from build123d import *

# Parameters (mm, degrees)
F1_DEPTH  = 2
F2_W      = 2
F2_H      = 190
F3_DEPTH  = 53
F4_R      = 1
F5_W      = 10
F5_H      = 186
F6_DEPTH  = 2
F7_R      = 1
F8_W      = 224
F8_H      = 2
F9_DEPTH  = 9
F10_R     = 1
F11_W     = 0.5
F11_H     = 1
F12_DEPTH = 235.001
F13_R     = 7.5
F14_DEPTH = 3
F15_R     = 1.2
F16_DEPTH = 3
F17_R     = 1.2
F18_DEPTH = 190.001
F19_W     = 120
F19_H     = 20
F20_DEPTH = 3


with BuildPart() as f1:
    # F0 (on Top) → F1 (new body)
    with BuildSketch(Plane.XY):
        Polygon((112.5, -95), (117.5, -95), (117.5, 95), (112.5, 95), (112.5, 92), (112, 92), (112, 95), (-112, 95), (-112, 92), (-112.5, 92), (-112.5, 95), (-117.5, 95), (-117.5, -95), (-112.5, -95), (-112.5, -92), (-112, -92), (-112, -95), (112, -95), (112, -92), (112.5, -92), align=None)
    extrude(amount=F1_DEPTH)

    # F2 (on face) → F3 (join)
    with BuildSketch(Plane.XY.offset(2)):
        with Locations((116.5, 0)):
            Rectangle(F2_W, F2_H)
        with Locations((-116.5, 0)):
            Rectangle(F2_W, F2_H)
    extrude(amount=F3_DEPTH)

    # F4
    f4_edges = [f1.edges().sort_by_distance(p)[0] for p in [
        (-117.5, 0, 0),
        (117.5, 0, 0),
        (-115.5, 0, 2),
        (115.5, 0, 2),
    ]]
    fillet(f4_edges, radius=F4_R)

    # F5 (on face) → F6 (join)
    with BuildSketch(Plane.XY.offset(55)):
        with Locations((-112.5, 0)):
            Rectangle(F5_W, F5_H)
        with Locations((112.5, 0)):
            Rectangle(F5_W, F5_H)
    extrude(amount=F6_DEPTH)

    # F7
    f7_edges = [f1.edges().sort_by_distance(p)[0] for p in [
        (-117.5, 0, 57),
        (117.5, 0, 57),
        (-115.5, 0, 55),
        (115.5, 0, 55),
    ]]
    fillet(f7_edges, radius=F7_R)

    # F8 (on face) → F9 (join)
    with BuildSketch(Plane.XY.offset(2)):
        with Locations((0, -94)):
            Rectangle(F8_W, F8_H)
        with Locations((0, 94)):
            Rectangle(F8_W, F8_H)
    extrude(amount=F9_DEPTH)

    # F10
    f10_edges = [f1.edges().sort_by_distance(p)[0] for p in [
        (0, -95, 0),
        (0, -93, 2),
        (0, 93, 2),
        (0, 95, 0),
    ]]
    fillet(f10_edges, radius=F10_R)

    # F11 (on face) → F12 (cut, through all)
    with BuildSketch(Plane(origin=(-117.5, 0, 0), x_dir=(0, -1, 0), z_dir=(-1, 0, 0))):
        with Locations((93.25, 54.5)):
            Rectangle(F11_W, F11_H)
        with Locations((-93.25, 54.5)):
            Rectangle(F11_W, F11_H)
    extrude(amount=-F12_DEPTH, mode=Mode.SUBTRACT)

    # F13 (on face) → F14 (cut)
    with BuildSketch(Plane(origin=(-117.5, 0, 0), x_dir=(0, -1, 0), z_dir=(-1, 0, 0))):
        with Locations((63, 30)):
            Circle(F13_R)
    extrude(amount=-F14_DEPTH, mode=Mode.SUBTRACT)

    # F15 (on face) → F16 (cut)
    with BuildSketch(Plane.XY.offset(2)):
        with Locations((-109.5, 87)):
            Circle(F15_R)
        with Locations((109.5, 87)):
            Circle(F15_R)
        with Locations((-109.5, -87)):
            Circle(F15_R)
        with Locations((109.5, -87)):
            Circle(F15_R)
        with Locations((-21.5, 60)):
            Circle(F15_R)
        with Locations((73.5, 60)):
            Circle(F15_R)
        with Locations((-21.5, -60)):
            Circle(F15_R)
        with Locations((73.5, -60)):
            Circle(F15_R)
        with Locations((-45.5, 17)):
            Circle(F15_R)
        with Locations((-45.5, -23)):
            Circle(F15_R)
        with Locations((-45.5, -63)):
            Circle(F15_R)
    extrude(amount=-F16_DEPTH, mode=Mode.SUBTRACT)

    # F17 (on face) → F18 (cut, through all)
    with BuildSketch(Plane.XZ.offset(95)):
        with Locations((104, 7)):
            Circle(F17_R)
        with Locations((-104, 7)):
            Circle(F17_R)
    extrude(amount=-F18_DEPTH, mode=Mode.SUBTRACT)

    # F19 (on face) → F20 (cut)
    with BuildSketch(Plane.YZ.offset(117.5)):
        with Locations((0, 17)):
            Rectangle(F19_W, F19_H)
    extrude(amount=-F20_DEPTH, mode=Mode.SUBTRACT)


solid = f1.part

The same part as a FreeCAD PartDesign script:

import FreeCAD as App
import Part
import Sketcher

V = App.Vector
Q = App.Units.Quantity


def edges_at(feature, points):
    """Names of the edges that pass closest to the given points."""
    edges = feature.Shape.Edges
    near = lambda p: min(range(len(edges)), key=lambda i: edges[i].distToShape(Part.Vertex(*p))[0])
    return sorted({f"Edge{near(p) + 1}" for p in points})

doc = App.newDocument("Part")
body = doc.addObject("PartDesign::Body", "Body")

# Sketch on XY plane
sketch1 = body.newObject("Sketcher::SketchObject", "Sketch")
sketch1.AttachmentSupport = (doc.getObject("XY_Plane"), [""])
sketch1.MapMode = "FlatFace"
sketch1.addGeometry([
    Part.LineSegment(V(112.5, -95, 0), V(117.5, -95, 0)),  # 0
    Part.LineSegment(V(117.5, -95, 0), V(117.5, 95, 0)),  # 1
    Part.LineSegment(V(117.5, 95, 0), V(112.5, 95, 0)),  # 2
    Part.LineSegment(V(112.5, 95, 0), V(112.5, 92, 0)),  # 3
    Part.LineSegment(V(112.5, 92, 0), V(112, 92, 0)),  # 4
    Part.LineSegment(V(112, 92, 0), V(112, 95, 0)),  # 5
    Part.LineSegment(V(112, 95, 0), V(-112, 95, 0)),  # 6
    Part.LineSegment(V(-112, 95, 0), V(-112, 92, 0)),  # 7
    Part.LineSegment(V(-112, 92, 0), V(-112.5, 92, 0)),  # 8
    Part.LineSegment(V(-112.5, 92, 0), V(-112.5, 95, 0)),  # 9
    Part.LineSegment(V(-112.5, 95, 0), V(-117.5, 95, 0)),  # 10
    Part.LineSegment(V(-117.5, 95, 0), V(-117.5, -95, 0)),  # 11
    Part.LineSegment(V(-117.5, -95, 0), V(-112.5, -95, 0)),  # 12
    Part.LineSegment(V(-112.5, -95, 0), V(-112.5, -92, 0)),  # 13
    Part.LineSegment(V(-112.5, -92, 0), V(-112, -92, 0)),  # 14
    Part.LineSegment(V(-112, -92, 0), V(-112, -95, 0)),  # 15
    Part.LineSegment(V(-112, -95, 0), V(112, -95, 0)),  # 16
    Part.LineSegment(V(112, -95, 0), V(112, -92, 0)),  # 17
    Part.LineSegment(V(112, -92, 0), V(112.5, -92, 0)),  # 18
    Part.LineSegment(V(112.5, -92, 0), V(112.5, -95, 0)),  # 19
], False)
sketch1.addConstraint([
    Sketcher.Constraint("Coincident", 0, 2, 1, 1),
    Sketcher.Constraint("Coincident", 1, 2, 2, 1),
    Sketcher.Constraint("Coincident", 2, 2, 3, 1),
    Sketcher.Constraint("Coincident", 3, 2, 4, 1),
    Sketcher.Constraint("Coincident", 4, 2, 5, 1),
    Sketcher.Constraint("Coincident", 5, 2, 6, 1),
    Sketcher.Constraint("Coincident", 6, 2, 7, 1),
    Sketcher.Constraint("Coincident", 7, 2, 8, 1),
    Sketcher.Constraint("Coincident", 8, 2, 9, 1),
    Sketcher.Constraint("Coincident", 9, 2, 10, 1),
    Sketcher.Constraint("Coincident", 10, 2, 11, 1),
    Sketcher.Constraint("Coincident", 11, 2, 12, 1),
    Sketcher.Constraint("Coincident", 12, 2, 13, 1),
    Sketcher.Constraint("Coincident", 13, 2, 14, 1),
    Sketcher.Constraint("Coincident", 14, 2, 15, 1),
    Sketcher.Constraint("Coincident", 15, 2, 16, 1),
    Sketcher.Constraint("Coincident", 16, 2, 17, 1),
    Sketcher.Constraint("Coincident", 17, 2, 18, 1),
    Sketcher.Constraint("Coincident", 18, 2, 19, 1),
    Sketcher.Constraint("Coincident", 19, 2, 0, 1),
    Sketcher.Constraint("Horizontal", 0),
    Sketcher.Constraint("Vertical", 1),
    Sketcher.Constraint("Horizontal", 2),
    Sketcher.Constraint("Vertical", 3),
    Sketcher.Constraint("Horizontal", 4),
    Sketcher.Constraint("Vertical", 5),
    Sketcher.Constraint("Horizontal", 6),
    Sketcher.Constraint("Vertical", 7),
    Sketcher.Constraint("Horizontal", 8),
    Sketcher.Constraint("Vertical", 9),
    Sketcher.Constraint("Horizontal", 10),
    Sketcher.Constraint("Vertical", 11),
    Sketcher.Constraint("Horizontal", 12),
    Sketcher.Constraint("Vertical", 13),
    Sketcher.Constraint("Horizontal", 14),
    Sketcher.Constraint("Vertical", 15),
    Sketcher.Constraint("Horizontal", 16),
    Sketcher.Constraint("Vertical", 17),
    Sketcher.Constraint("Horizontal", 18),
    Sketcher.Constraint("Vertical", 19),
    Sketcher.Constraint("Symmetric", 0, 2, 10, 2, -1, 1),
    Sketcher.Constraint("Symmetric", 2, 2, 12, 2, -1, 1),
    Sketcher.Constraint("Symmetric", 4, 2, 14, 2, -1, 1),
    Sketcher.Constraint("Symmetric", 6, 2, 16, 2, -1, 1),
    Sketcher.Constraint("Symmetric", 8, 2, 18, 2, -1, 1),
    Sketcher.Constraint("Symmetric", 4, 2, 7, 2, -2),
    Sketcher.Constraint("Symmetric", 2, 2, 9, 2, -2),
    Sketcher.Constraint("Horizontal", 2, 2, 5, 2),
    Sketcher.Constraint("DistanceX", 0, 1, 0, 2, Q("5 mm")),
    Sketcher.Constraint("DistanceX", 6, 2, 6, 1, Q("224 mm")),
    Sketcher.Constraint("DistanceY", 1, 1, 1, 2, Q("190 mm")),
    Sketcher.Constraint("DistanceY", 3, 2, 3, 1, Q("3 mm")),
    Sketcher.Constraint("DistanceX", 4, 2, 4, 1, Q("0.5 mm")),
])
pad1 = body.newObject("PartDesign::Pad", "Pad")
pad1.Profile = sketch1
pad1.Length = 2

# Sketch on XY plane
sketch2 = body.newObject("Sketcher::SketchObject", "Sketch001")
sketch2.AttachmentSupport = (doc.getObject("XY_Plane"), [""])
sketch2.MapMode = "FlatFace"
sketch2.AttachmentOffset = App.Placement(V(0, 0, 2), App.Rotation())
sketch2.addGeometry([
    Part.LineSegment(V(115.5, 95, 0), V(115.5, -95, 0)),  # 0
    Part.LineSegment(V(115.5, -95, 0), V(117.5, -95, 0)),  # 1
    Part.LineSegment(V(117.5, -95, 0), V(117.5, 95, 0)),  # 2
    Part.LineSegment(V(117.5, 95, 0), V(115.5, 95, 0)),  # 3
    Part.LineSegment(V(-117.5, 95, 0), V(-117.5, -95, 0)),  # 4
    Part.LineSegment(V(-117.5, -95, 0), V(-115.5, -95, 0)),  # 5
    Part.LineSegment(V(-115.5, -95, 0), V(-115.5, 95, 0)),  # 6
    Part.LineSegment(V(-115.5, 95, 0), V(-117.5, 95, 0)),  # 7
], False)
sketch2.addConstraint([
    Sketcher.Constraint("Coincident", 0, 2, 1, 1),
    Sketcher.Constraint("Coincident", 1, 2, 2, 1),
    Sketcher.Constraint("Coincident", 2, 2, 3, 1),
    Sketcher.Constraint("Coincident", 3, 2, 0, 1),
    Sketcher.Constraint("Coincident", 4, 2, 5, 1),
    Sketcher.Constraint("Coincident", 5, 2, 6, 1),
    Sketcher.Constraint("Coincident", 6, 2, 7, 1),
    Sketcher.Constraint("Coincident", 7, 2, 4, 1),
    Sketcher.Constraint("Vertical", 0),
    Sketcher.Constraint("Horizontal", 1),
    Sketcher.Constraint("Vertical", 2),
    Sketcher.Constraint("Horizontal", 3),
    Sketcher.Constraint("Vertical", 4),
    Sketcher.Constraint("Horizontal", 5),
    Sketcher.Constraint("Vertical", 6),
    Sketcher.Constraint("Horizontal", 7),
    Sketcher.Constraint("Symmetric", 2, 2, 4, 2, -1, 1),
    Sketcher.Constraint("Symmetric", 0, 2, 6, 2, -1, 1),
    Sketcher.Constraint("Horizontal", 1, 2, 4, 2),
    Sketcher.Constraint("DistanceX", 1, 1, 1, 2, Q("2 mm")),
    Sketcher.Constraint("DistanceY", 0, 2, 0, 1, Q("190 mm")),
    Sketcher.Constraint("DistanceX", 4, 2, 0, 2, Q("233 mm")),
])
pad2 = body.newObject("PartDesign::Pad", "Pad001")
pad2.Profile = sketch2
pad2.Length = 53
doc.recompute()

fillet = body.newObject("PartDesign::Fillet", "Fillet")
fillet.Base = (pad2, edges_at(pad2, [
    (-117.5, 0, 0),
    (117.5, 0, 0),
    (-115.5, 0, 2),
    (115.5, 0, 2),
]))
fillet.Radius = 1

# Sketch on XY plane
sketch3 = body.newObject("Sketcher::SketchObject", "Sketch002")
sketch3.AttachmentSupport = (doc.getObject("XY_Plane"), [""])
sketch3.MapMode = "FlatFace"
sketch3.AttachmentOffset = App.Placement(V(0, 0, 55), App.Rotation())
sketch3.addGeometry([
    Part.LineSegment(V(-118, 93, 0), V(-118, -93, 0)),  # 0
    Part.LineSegment(V(-118, -93, 0), V(-108, -93, 0)),  # 1
    Part.LineSegment(V(-108, -93, 0), V(-108, 93, 0)),  # 2
    Part.LineSegment(V(-108, 93, 0), V(-118, 93, 0)),  # 3
    Part.LineSegment(V(108, 93, 0), V(108, -93, 0)),  # 4
    Part.LineSegment(V(108, -93, 0), V(118, -93, 0)),  # 5
    Part.LineSegment(V(118, -93, 0), V(118, 93, 0)),  # 6
    Part.LineSegment(V(118, 93, 0), V(108, 93, 0)),  # 7
], False)
sketch3.addConstraint([
    Sketcher.Constraint("Coincident", 0, 2, 1, 1),
    Sketcher.Constraint("Coincident", 1, 2, 2, 1),
    Sketcher.Constraint("Coincident", 2, 2, 3, 1),
    Sketcher.Constraint("Coincident", 3, 2, 0, 1),
    Sketcher.Constraint("Coincident", 4, 2, 5, 1),
    Sketcher.Constraint("Coincident", 5, 2, 6, 1),
    Sketcher.Constraint("Coincident", 6, 2, 7, 1),
    Sketcher.Constraint("Coincident", 7, 2, 4, 1),
    Sketcher.Constraint("Vertical", 0),
    Sketcher.Constraint("Horizontal", 1),
    Sketcher.Constraint("Vertical", 2),
    Sketcher.Constraint("Horizontal", 3),
    Sketcher.Constraint("Vertical", 4),
    Sketcher.Constraint("Horizontal", 5),
    Sketcher.Constraint("Vertical", 6),
    Sketcher.Constraint("Horizontal", 7),
    Sketcher.Constraint("Symmetric", 2, 2, 4, 2, -1, 1),
    Sketcher.Constraint("Symmetric", 0, 2, 6, 2, -1, 1),
    Sketcher.Constraint("Horizontal", 1, 2, 4, 2),
    Sketcher.Constraint("DistanceX", 1, 1, 1, 2, Q("10 mm")),
    Sketcher.Constraint("DistanceY", 0, 2, 0, 1, Q("186 mm")),
    Sketcher.Constraint("DistanceX", 1, 2, 4, 2, Q("215 mm")),
])
pad3 = body.newObject("PartDesign::Pad", "Pad002")
pad3.Profile = sketch3
pad3.Length = 2
doc.recompute()

fillet2 = body.newObject("PartDesign::Fillet", "Fillet001")
fillet2.Base = (pad3, edges_at(pad3, [
    (-117.5, 0, 57),
    (117.5, 0, 57),
    (-115.5, 0, 55),
    (115.5, 0, 55),
]))
fillet2.Radius = 1

# Sketch on XY plane
sketch4 = body.newObject("Sketcher::SketchObject", "Sketch003")
sketch4.AttachmentSupport = (doc.getObject("XY_Plane"), [""])
sketch4.MapMode = "FlatFace"
sketch4.AttachmentOffset = App.Placement(V(0, 0, 2), App.Rotation())
sketch4.addGeometry([
    Part.LineSegment(V(-112, -93, 0), V(-112, -95, 0)),  # 0
    Part.LineSegment(V(-112, -95, 0), V(112, -95, 0)),  # 1
    Part.LineSegment(V(112, -95, 0), V(112, -93, 0)),  # 2
    Part.LineSegment(V(112, -93, 0), V(-112, -93, 0)),  # 3
    Part.LineSegment(V(-112, 95, 0), V(-112, 93, 0)),  # 4
    Part.LineSegment(V(-112, 93, 0), V(112, 93, 0)),  # 5
    Part.LineSegment(V(112, 93, 0), V(112, 95, 0)),  # 6
    Part.LineSegment(V(112, 95, 0), V(-112, 95, 0)),  # 7
], False)
sketch4.addConstraint([
    Sketcher.Constraint("Coincident", 0, 2, 1, 1),
    Sketcher.Constraint("Coincident", 1, 2, 2, 1),
    Sketcher.Constraint("Coincident", 2, 2, 3, 1),
    Sketcher.Constraint("Coincident", 3, 2, 0, 1),
    Sketcher.Constraint("Coincident", 4, 2, 5, 1),
    Sketcher.Constraint("Coincident", 5, 2, 6, 1),
    Sketcher.Constraint("Coincident", 6, 2, 7, 1),
    Sketcher.Constraint("Coincident", 7, 2, 4, 1),
    Sketcher.Constraint("Vertical", 0),
    Sketcher.Constraint("Horizontal", 1),
    Sketcher.Constraint("Vertical", 2),
    Sketcher.Constraint("Horizontal", 3),
    Sketcher.Constraint("Vertical", 4),
    Sketcher.Constraint("Horizontal", 5),
    Sketcher.Constraint("Vertical", 6),
    Sketcher.Constraint("Horizontal", 7),
    Sketcher.Constraint("Symmetric", 2, 2, 4, 2, -1, 1),
    Sketcher.Constraint("Symmetric", 0, 2, 6, 2, -1, 1),
    Sketcher.Constraint("Vertical", 3, 2, 4, 2),
    Sketcher.Constraint("DistanceX", 1, 1, 1, 2, Q("224 mm")),
    Sketcher.Constraint("DistanceY", 0, 2, 0, 1, Q("2 mm")),
    Sketcher.Constraint("DistanceY", 0, 2, -1, 1, Q("95 mm")),
])
pad4 = body.newObject("PartDesign::Pad", "Pad003")
pad4.Profile = sketch4
pad4.Length = 9
doc.recompute()

fillet3 = body.newObject("PartDesign::Fillet", "Fillet002")
fillet3.Base = (pad4, edges_at(pad4, [
    (0, -95, 0),
    (0, -93, 2),
    (0, 93, 2),
    (0, 95, 0),
]))
fillet3.Radius = 1

# Sketch on YZ plane
sketch5 = body.newObject("Sketcher::SketchObject", "Sketch004")
sketch5.AttachmentSupport = (doc.getObject("YZ_Plane"), [""])
sketch5.MapMode = "FlatFace"
sketch5.AttachmentOffset = App.Placement(V(0, 0, -117.5), App.Rotation())
sketch5.addGeometry([
    Part.LineSegment(V(-93, 55, 0), V(-93, 54, 0)),  # 0
    Part.LineSegment(V(-93, 54, 0), V(-93.5, 54, 0)),  # 1
    Part.LineSegment(V(-93.5, 54, 0), V(-93.5, 55, 0)),  # 2
    Part.LineSegment(V(-93.5, 55, 0), V(-93, 55, 0)),  # 3
    Part.LineSegment(V(93.5, 55, 0), V(93.5, 54, 0)),  # 4
    Part.LineSegment(V(93.5, 54, 0), V(93, 54, 0)),  # 5
    Part.LineSegment(V(93, 54, 0), V(93, 55, 0)),  # 6
    Part.LineSegment(V(93, 55, 0), V(93.5, 55, 0)),  # 7
], False)
sketch5.addConstraint([
    Sketcher.Constraint("Coincident", 0, 2, 1, 1),
    Sketcher.Constraint("Coincident", 1, 2, 2, 1),
    Sketcher.Constraint("Coincident", 2, 2, 3, 1),
    Sketcher.Constraint("Coincident", 3, 2, 0, 1),
    Sketcher.Constraint("Coincident", 4, 2, 5, 1),
    Sketcher.Constraint("Coincident", 5, 2, 6, 1),
    Sketcher.Constraint("Coincident", 6, 2, 7, 1),
    Sketcher.Constraint("Coincident", 7, 2, 4, 1),
    Sketcher.Constraint("Vertical", 0),
    Sketcher.Constraint("Horizontal", 1),
    Sketcher.Constraint("Vertical", 2),
    Sketcher.Constraint("Horizontal", 3),
    Sketcher.Constraint("Vertical", 4),
    Sketcher.Constraint("Horizontal", 5),
    Sketcher.Constraint("Vertical", 6),
    Sketcher.Constraint("Horizontal", 7),
    Sketcher.Constraint("Symmetric", 1, 2, 4, 2, -2),
    Sketcher.Constraint("Symmetric", 3, 2, 6, 2, -2),
    Sketcher.Constraint("DistanceY", 0, 2, 0, 1, Q("1 mm")),
    Sketcher.Constraint("DistanceX", 1, 2, 1, 1, Q("0.5 mm")),
    Sketcher.Constraint("DistanceX", 0, 2, -1, 1, Q("93 mm")),
    Sketcher.Constraint("DistanceY", -1, 1, 0, 2, Q("54 mm")),
])
pocket1 = body.newObject("PartDesign::Pocket", "Pocket")
pocket1.Profile = sketch5
pocket1.Type = "ThroughAll"
pocket1.Reversed = True

# Sketch on YZ plane
sketch6 = body.newObject("Sketcher::SketchObject", "Sketch005")
sketch6.AttachmentSupport = (doc.getObject("YZ_Plane"), [""])
sketch6.MapMode = "FlatFace"
sketch6.AttachmentOffset = App.Placement(V(0, 0, -117.5), App.Rotation())
sketch6.addGeometry(Part.Circle(V(-63, 30, 0), V(0, 0, 1), 8), False)
sketch6.addConstraint([
    Sketcher.Constraint("Diameter", 0, Q("15 mm")),
    Sketcher.Constraint("DistanceX", 0, 3, -1, 1, Q("63 mm")),
    Sketcher.Constraint("DistanceY", -1, 1, 0, 3, Q("30 mm")),
])
pocket2 = body.newObject("PartDesign::Pocket", "Pocket001")
pocket2.Profile = sketch6
pocket2.Length = 3
pocket2.Reversed = True

# Sketch on XY plane
sketch7 = body.newObject("Sketcher::SketchObject", "Sketch006")
sketch7.AttachmentSupport = (doc.getObject("XY_Plane"), [""])
sketch7.MapMode = "FlatFace"
sketch7.AttachmentOffset = App.Placement(V(0, 0, 2), App.Rotation())
sketch7.addGeometry([
    Part.Circle(V(-109.5, 87, 0), V(0, 0, 1), 1.2),  # 0
    Part.Circle(V(109.5, 87, 0), V(0, 0, 1), 1.2),  # 1
    Part.Circle(V(-109.5, -87, 0), V(0, 0, 1), 1.2),  # 2
    Part.Circle(V(109.5, -87, 0), V(0, 0, 1), 1.2),  # 3
    Part.Circle(V(-21.5, 60, 0), V(0, 0, 1), 1.2),  # 4
    Part.Circle(V(73.5, 60, 0), V(0, 0, 1), 1.2),  # 5
    Part.Circle(V(-21.5, -60, 0), V(0, 0, 1), 1.2),  # 6
    Part.Circle(V(73.5, -60, 0), V(0, 0, 1), 1.2),  # 7
    Part.Circle(V(-45.5, 17, 0), V(0, 0, 1), 1.2),  # 8
    Part.Circle(V(-45.5, -23, 0), V(0, 0, 1), 1.2),  # 9
    Part.Circle(V(-45.5, -63, 0), V(0, 0, 1), 1.2),  # 10
], False)
sketch7.addConstraint([
    Sketcher.Constraint("Equal", 0, 1),
    Sketcher.Constraint("Equal", 1, 2),
    Sketcher.Constraint("Equal", 2, 3),
    Sketcher.Constraint("Equal", 3, 4),
    Sketcher.Constraint("Equal", 4, 5),
    Sketcher.Constraint("Equal", 5, 6),
    Sketcher.Constraint("Equal", 6, 7),
    Sketcher.Constraint("Equal", 7, 8),
    Sketcher.Constraint("Equal", 8, 9),
    Sketcher.Constraint("Equal", 9, 10),
    Sketcher.Constraint("Symmetric", 1, 3, 2, 3, -1, 1),
    Sketcher.Constraint("Symmetric", 0, 3, 3, 3, -1, 1),
    Sketcher.Constraint("Symmetric", 0, 3, 1, 3, -2),
    Sketcher.Constraint("Symmetric", 4, 3, 6, 3, -1),
    Sketcher.Constraint("Symmetric", 5, 3, 7, 3, -1),
    Sketcher.Constraint("Horizontal", 4, 3, 5, 3),
    Sketcher.Constraint("Vertical", 8, 3, 9, 3),
    Sketcher.Constraint("Vertical", 9, 3, 10, 3),
    Sketcher.Constraint("Diameter", 0, Q("2.4 mm")),
    Sketcher.Constraint("DistanceY", -1, 1, 0, 3, Q("87 mm")),
    Sketcher.Constraint("DistanceY", -1, 1, 4, 3, Q("60 mm")),
    Sketcher.Constraint("DistanceY", -1, 1, 8, 3, Q("17 mm")),
    Sketcher.Constraint("DistanceY", 9, 3, -1, 1, Q("23 mm")),
    Sketcher.Constraint("DistanceY", 10, 3, -1, 1, Q("63 mm")),
    Sketcher.Constraint("DistanceX", 0, 3, 1, 3, Q("219 mm")),
    Sketcher.Constraint("DistanceX", 0, 3, 4, 3, Q("88 mm")),
    Sketcher.Constraint("DistanceX", 5, 3, 1, 3, Q("36 mm")),
    Sketcher.Constraint("DistanceX", 8, 3, 4, 3, Q("24 mm")),
])
pocket3 = body.newObject("PartDesign::Pocket", "Pocket002")
pocket3.Profile = sketch7
pocket3.Length = 3

# Sketch on XZ plane
sketch8 = body.newObject("Sketcher::SketchObject", "Sketch007")
sketch8.AttachmentSupport = (doc.getObject("XZ_Plane"), [""])
sketch8.MapMode = "FlatFace"
sketch8.AttachmentOffset = App.Placement(V(0, 0, 95), App.Rotation())
sketch8.addGeometry([
    Part.Circle(V(104, 7, 0), V(0, 0, 1), 1.2),
    Part.Circle(V(-104, 7, 0), V(0, 0, 1), 1.2),
], False)
sketch8.addConstraint([
    Sketcher.Constraint("Equal", 0, 1),
    Sketcher.Constraint("Symmetric", 0, 3, 1, 3, -2),
    Sketcher.Constraint("Diameter", 0, Q("2.4 mm")),
    Sketcher.Constraint("DistanceX", -1, 1, 0, 3, Q("104 mm")),
    Sketcher.Constraint("DistanceY", -1, 1, 0, 3, Q("7 mm")),
])
pocket4 = body.newObject("PartDesign::Pocket", "Pocket003")
pocket4.Profile = sketch8
pocket4.Type = "ThroughAll"

# Sketch on YZ plane
sketch9 = body.newObject("Sketcher::SketchObject", "Sketch008")
sketch9.AttachmentSupport = (doc.getObject("YZ_Plane"), [""])
sketch9.MapMode = "FlatFace"
sketch9.AttachmentOffset = App.Placement(V(0, 0, 117.5), App.Rotation())
sketch9.addGeometry([
    Part.LineSegment(V(-60, 27, 0), V(-60, 7, 0)),
    Part.LineSegment(V(-60, 7, 0), V(60, 7, 0)),
    Part.LineSegment(V(60, 7, 0), V(60, 27, 0)),
    Part.LineSegment(V(60, 27, 0), V(-60, 27, 0)),
], False)
sketch9.addConstraint([
    Sketcher.Constraint("Coincident", 0, 2, 1, 1),
    Sketcher.Constraint("Coincident", 1, 2, 2, 1),
    Sketcher.Constraint("Coincident", 2, 2, 3, 1),
    Sketcher.Constraint("Coincident", 3, 2, 0, 1),
    Sketcher.Constraint("Vertical", 0),
    Sketcher.Constraint("Horizontal", 1),
    Sketcher.Constraint("Vertical", 2),
    Sketcher.Constraint("Horizontal", 3),
    Sketcher.Constraint("DistanceX", 1, 1, 1, 2, Q("120 mm")),
    Sketcher.Constraint("DistanceY", 0, 2, 0, 1, Q("20 mm")),
    Sketcher.Constraint("DistanceX", 0, 2, -1, 1, Q("60 mm")),
    Sketcher.Constraint("DistanceY", -1, 1, 0, 2, Q("7 mm")),
])
pocket5 = body.newObject("PartDesign::Pocket", "Pocket004")
pocket5.Profile = sketch9
pocket5.Length = 3

doc.recompute()
